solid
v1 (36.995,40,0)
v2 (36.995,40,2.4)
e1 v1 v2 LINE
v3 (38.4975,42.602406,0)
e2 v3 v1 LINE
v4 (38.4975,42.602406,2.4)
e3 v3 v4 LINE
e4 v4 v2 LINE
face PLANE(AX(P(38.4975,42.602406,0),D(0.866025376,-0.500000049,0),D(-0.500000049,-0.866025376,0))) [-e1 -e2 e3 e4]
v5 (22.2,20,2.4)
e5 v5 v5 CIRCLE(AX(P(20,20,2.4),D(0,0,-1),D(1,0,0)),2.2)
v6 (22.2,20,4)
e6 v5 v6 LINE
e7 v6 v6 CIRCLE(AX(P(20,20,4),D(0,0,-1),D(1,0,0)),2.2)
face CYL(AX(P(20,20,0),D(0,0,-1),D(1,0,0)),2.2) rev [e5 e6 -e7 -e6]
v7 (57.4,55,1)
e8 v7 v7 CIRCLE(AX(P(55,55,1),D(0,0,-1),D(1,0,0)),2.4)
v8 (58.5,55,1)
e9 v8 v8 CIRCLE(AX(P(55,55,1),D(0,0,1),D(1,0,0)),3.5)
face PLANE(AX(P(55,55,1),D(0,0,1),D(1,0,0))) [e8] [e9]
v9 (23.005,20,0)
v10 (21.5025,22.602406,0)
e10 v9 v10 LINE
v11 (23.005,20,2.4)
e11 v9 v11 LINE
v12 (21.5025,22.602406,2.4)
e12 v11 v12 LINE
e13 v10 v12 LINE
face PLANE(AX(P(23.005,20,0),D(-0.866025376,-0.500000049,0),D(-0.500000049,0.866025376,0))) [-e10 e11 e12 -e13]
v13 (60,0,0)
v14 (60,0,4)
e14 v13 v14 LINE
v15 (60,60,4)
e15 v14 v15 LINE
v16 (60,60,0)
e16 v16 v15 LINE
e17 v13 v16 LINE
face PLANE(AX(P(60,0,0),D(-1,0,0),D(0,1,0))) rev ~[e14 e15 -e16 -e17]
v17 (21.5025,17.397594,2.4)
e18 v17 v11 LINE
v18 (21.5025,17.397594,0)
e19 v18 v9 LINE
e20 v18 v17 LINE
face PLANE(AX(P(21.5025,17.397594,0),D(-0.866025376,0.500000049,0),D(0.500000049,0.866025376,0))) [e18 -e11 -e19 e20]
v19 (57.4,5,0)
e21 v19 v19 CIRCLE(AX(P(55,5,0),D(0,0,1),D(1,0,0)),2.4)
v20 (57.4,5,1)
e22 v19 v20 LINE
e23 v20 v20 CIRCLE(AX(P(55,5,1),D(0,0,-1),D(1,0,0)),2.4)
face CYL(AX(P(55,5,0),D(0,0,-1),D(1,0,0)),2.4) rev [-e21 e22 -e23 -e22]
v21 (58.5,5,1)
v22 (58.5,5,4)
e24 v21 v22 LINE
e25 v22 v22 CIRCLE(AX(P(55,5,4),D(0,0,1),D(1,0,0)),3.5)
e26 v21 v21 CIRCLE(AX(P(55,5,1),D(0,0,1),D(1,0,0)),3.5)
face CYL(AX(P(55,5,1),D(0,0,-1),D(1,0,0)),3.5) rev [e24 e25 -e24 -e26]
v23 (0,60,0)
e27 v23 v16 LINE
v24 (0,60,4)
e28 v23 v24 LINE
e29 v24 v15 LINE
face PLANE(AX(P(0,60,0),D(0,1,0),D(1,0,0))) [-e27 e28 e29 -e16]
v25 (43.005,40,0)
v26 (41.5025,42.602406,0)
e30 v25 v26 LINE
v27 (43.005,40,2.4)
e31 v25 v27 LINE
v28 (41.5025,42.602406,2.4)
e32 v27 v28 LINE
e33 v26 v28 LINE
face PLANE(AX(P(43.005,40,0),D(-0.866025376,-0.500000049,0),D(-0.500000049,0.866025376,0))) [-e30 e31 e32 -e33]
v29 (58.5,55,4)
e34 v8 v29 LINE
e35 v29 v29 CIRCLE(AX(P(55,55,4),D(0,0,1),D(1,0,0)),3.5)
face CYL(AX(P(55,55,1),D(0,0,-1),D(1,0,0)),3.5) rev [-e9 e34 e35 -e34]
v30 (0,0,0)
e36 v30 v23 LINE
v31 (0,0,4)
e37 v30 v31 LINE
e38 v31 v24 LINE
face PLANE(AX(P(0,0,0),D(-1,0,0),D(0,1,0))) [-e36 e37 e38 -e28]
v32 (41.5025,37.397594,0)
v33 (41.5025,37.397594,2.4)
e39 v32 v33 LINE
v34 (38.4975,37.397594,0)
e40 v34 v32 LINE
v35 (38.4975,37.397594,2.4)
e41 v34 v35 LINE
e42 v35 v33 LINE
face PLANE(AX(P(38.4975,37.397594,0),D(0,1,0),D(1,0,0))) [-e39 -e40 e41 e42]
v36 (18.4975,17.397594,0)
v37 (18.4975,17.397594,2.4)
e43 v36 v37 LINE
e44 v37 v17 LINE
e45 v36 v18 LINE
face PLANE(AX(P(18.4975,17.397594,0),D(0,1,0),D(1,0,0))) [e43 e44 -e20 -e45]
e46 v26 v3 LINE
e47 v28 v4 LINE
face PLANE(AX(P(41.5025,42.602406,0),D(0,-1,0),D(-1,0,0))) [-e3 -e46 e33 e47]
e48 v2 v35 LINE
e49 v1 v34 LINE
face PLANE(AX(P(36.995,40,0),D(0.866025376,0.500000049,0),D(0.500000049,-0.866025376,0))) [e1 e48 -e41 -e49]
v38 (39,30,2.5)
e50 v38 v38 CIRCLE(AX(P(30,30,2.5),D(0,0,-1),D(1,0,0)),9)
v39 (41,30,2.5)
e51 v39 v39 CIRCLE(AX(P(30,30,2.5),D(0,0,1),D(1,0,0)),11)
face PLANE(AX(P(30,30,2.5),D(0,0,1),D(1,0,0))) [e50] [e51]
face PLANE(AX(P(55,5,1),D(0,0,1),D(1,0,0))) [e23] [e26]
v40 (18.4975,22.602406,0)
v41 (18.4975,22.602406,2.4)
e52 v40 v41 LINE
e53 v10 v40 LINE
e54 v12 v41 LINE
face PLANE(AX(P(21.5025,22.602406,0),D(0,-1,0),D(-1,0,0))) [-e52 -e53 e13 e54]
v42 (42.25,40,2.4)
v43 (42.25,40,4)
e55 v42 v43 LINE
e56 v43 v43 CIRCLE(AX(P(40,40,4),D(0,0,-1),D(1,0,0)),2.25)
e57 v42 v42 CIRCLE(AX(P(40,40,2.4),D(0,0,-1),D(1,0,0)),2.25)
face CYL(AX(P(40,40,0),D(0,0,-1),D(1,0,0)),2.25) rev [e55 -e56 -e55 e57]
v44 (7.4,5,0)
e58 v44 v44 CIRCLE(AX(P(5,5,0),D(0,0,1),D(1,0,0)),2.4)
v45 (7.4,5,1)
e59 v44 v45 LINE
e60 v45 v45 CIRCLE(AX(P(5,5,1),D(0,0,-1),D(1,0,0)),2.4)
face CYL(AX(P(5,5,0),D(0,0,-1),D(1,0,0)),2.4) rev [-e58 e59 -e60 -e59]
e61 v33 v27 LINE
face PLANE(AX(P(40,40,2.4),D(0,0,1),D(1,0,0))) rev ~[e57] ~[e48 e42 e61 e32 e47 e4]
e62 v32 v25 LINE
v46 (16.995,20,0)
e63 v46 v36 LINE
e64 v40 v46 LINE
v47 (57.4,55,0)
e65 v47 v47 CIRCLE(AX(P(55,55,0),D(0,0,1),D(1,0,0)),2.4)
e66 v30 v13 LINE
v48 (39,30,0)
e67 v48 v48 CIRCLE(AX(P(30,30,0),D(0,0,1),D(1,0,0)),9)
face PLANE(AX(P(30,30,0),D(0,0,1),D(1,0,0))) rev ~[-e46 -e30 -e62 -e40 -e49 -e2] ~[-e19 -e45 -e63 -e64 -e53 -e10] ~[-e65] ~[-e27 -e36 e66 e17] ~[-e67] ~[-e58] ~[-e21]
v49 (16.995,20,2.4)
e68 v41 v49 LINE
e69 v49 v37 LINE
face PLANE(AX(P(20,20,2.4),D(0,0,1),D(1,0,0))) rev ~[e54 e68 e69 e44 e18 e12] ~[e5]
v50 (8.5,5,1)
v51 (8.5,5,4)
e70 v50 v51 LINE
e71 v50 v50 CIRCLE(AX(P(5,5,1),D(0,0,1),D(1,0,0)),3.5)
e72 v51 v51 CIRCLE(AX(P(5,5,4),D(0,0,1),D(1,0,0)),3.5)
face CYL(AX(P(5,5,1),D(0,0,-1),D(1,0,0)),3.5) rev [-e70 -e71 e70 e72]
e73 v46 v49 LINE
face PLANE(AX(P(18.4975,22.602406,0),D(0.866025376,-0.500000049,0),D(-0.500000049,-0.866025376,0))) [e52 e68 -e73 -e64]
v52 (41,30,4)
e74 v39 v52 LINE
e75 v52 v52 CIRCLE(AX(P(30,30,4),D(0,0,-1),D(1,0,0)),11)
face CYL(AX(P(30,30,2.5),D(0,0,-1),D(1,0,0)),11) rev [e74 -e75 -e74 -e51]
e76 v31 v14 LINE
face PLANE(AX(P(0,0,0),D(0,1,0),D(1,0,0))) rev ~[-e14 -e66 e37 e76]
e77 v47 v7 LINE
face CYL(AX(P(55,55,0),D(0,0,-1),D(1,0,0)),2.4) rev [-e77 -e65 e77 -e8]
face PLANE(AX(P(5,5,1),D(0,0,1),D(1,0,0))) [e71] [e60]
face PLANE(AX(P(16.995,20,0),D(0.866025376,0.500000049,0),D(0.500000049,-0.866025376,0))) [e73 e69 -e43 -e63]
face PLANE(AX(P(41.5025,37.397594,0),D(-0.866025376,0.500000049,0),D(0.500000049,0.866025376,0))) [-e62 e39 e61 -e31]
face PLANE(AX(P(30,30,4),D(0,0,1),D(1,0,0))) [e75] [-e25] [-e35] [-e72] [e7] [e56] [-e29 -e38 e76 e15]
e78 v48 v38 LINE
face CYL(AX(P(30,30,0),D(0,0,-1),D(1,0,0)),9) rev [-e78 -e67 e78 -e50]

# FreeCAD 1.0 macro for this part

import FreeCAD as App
import Part
import Sketcher

V = App.Vector
Q = App.Units.Quantity

doc = App.newDocument("Part")
params = doc.addObject("Spreadsheet::Sheet", "Params")
for row, (alias, value) in enumerate([
    ("sketch1_diameter", "4.5 mm"),
    ("pad1_length", "10 mm"),
    ("pad2_length", "2.4 mm"),
    ("sketch3_diameter", "4.4 mm"),
    ("pad3_length", "10 mm"),
    ("pad4_length", "2.4 mm"),
    ("sketch5_diameter", "22 mm"),
    ("pad5_length", "10 mm"),
    ("sketch6_diameter", "18 mm"),
    ("pad6_length", "10 mm"),
    ("sketch7_diameter", "7 mm"),
    ("pad7_length", "3 mm"),
    ("sketch8_diameter", "4.8 mm"),
    ("pad8_length", "10 mm"),
    ("sketch9_diameter", "7 mm"),
    ("pad9_length", "3 mm"),
    ("sketch10_diameter", "4.8 mm"),
    ("pad10_length", "10 mm"),
    ("sketch11_diameter", "7 mm"),
    ("pad11_length", "3 mm"),
    ("sketch12_diameter", "4.8 mm"),
    ("pad12_length", "10 mm"),
    ("sketch13_width", "60 mm"),
    ("pad13_length", "4 mm"),
], start=1):
    params.set(f"A{row}", alias)
    params.set(f"B{row}", "=" + value)
    params.setAlias(f"B{row}", alias)

body = doc.addObject("PartDesign::Body", "Body")

# Sketch on XY plane
sketch1 = doc.addObject("Sketcher::SketchObject", "Sketch")
body.addObject(sketch1)
sketch1.AttachmentSupport = (doc.XY_Plane, [""])
sketch1.MapMode = "FlatFace"
sketch1.addGeometry(Part.Circle(V(40, 40, 0), V(0, 0, 1), 2.2), False)
sketch1.addConstraint([
    Sketcher.Constraint("Diameter", 0, Q("4.5 mm")),
    Sketcher.Constraint("DistanceX", -1, 1, 0, 3, Q("40 mm")),
    Sketcher.Constraint("DistanceY", -1, 1, 0, 3, Q("40 mm")),
])
sketch1.setExpression("Constraints[0]", "Params.sketch1_diameter")
pad1 = doc.addObject("PartDesign::Pad", "Pad")
body.addObject(pad1)
pad1.Profile = sketch1
pad1.setExpression("Length", "Params.pad1_length")
body2 = doc.addObject("PartDesign::Body", "Body001")

# Sketch on XY plane
sketch2 = doc.addObject("Sketcher::SketchObject", "Sketch001")
body2.addObject(sketch2)
sketch2.AttachmentSupport = (doc.getObject("XY_Plane001"), [""])
sketch2.MapMode = "FlatFace"
sketch2.addGeometry([
    Part.LineSegment(V(-3, 0, 0), V(-1.5, -2.6, 0)),  # 0
    Part.LineSegment(V(-1.5, -2.6, 0), V(1.5, -2.6, 0)),  # 1
    Part.LineSegment(V(1.5, -2.6, 0), V(3, 0, 0)),  # 2
    Part.LineSegment(V(3, 0, 0), V(1.5, 2.6, 0)),  # 3
    Part.LineSegment(V(1.5, 2.6, 0), V(-1.5, 2.6, 0)),  # 4
    Part.LineSegment(V(-1.5, 2.6, 0), V(-3, 0, 0)),  # 5
], False)
sketch2.addConstraint([
    Sketcher.Constraint("Coincident", 0, 2, 1, 1),
    Sketcher.Constraint("Coincident", 1, 2, 2, 1),
    Sketcher.Constraint("Coincident", 2, 2, 3, 1),
    Sketcher.Constraint("Coincident", 3, 2, 4, 1),
    Sketcher.Constraint("Coincident", 4, 2, 5, 1),
    Sketcher.Constraint("Coincident", 5, 2, 0, 1),
    Sketcher.Constraint("Horizontal", 1),
    Sketcher.Constraint("Horizontal", 4),
    Sketcher.Constraint("Symmetric", 0, 2, 3, 2, -1, 1),
    Sketcher.Constraint("Symmetric", 2, 2, 5, 2, -1, 1),
    Sketcher.Constraint("PointOnObject", 2, 2, -1),
    Sketcher.Constraint("Parallel", 2, 5),
    Sketcher.Constraint("Vertical", 1, 2, 3, 2),
    Sketcher.Constraint("Angle", 0, Q("-59.999997 deg")),
    Sketcher.Constraint("DistanceX", 1, 1, 1, 2, Q("3.005 mm")),
    Sketcher.Constraint("DistanceX", 5, 2, 2, 2, Q("6.01 mm")),
])
pad2 = doc.addObject("PartDesign::Pad", "Pad001")
body2.addObject(pad2)
pad2.Profile = sketch2
pad2.setExpression("Length", "Params.pad2_length")
body3 = doc.addObject("PartDesign::Body", "Body002")
doc.recompute()

body2.Placement = App.Placement(V(40, 40, 0), App.Rotation(V(0, 0, 1), 0))
boolean = doc.addObject("PartDesign::Boolean", "Boolean")
body3.addObject(boolean)
boolean.Type = "Fuse"
boolean.addObjects([body2])
doc.recompute()

boolean2 = doc.addObject("PartDesign::Boolean", "Boolean001")
body3.addObject(boolean2)
boolean2.Type = "Fuse"
boolean2.addObjects([body])
body4 = doc.addObject("PartDesign::Body", "Body003")

# Sketch on XY plane
sketch3 = doc.addObject("Sketcher::SketchObject", "Sketch002")
body4.addObject(sketch3)
sketch3.AttachmentSupport = (doc.getObject("XY_Plane003"), [""])
sketch3.MapMode = "FlatFace"
sketch3.addGeometry(Part.Circle(V(20, 20, 0), V(0, 0, 1), 2.2), False)
sketch3.addConstraint([
    Sketcher.Constraint("Diameter", 0, Q("4.4 mm")),
    Sketcher.Constraint("DistanceX", -1, 1, 0, 3, Q("20 mm")),
    Sketcher.Constraint("DistanceY", -1, 1, 0, 3, Q("20 mm")),
])
sketch3.setExpression("Constraints[0]", "Params.sketch3_diameter")
pad3 = doc.addObject("PartDesign::Pad", "Pad002")
body4.addObject(pad3)
pad3.Profile = sketch3
pad3.setExpression("Length", "Params.pad3_length")
body5 = doc.addObject("PartDesign::Body", "Body004")

# Sketch on XY plane
sketch4 = doc.addObject("Sketcher::SketchObject", "Sketch003")
body5.addObject(sketch4)
sketch4.AttachmentSupport = (doc.getObject("XY_Plane004"), [""])
sketch4.MapMode = "FlatFace"
sketch4.addGeometry([
    Part.LineSegment(V(-3, 0, 0), V(-1.5, -2.6, 0)),  # 0
    Part.LineSegment(V(-1.5, -2.6, 0), V(1.5, -2.6, 0)),  # 1
    Part.LineSegment(V(1.5, -2.6, 0), V(3, 0, 0)),  # 2
    Part.LineSegment(V(3, 0, 0), V(1.5, 2.6, 0)),  # 3
    Part.LineSegment(V(1.5, 2.6, 0), V(-1.5, 2.6, 0)),  # 4
    Part.LineSegment(V(-1.5, 2.6, 0), V(-3, 0, 0)),  # 5
], False)
sketch4.addConstraint([
    Sketcher.Constraint("Coincident", 0, 2, 1, 1),
    Sketcher.Constraint("Coincident", 1, 2, 2, 1),
    Sketcher.Constraint("Coincident", 2, 2, 3, 1),
    Sketcher.Constraint("Coincident", 3, 2, 4, 1),
    Sketcher.Constraint("Coincident", 4, 2, 5, 1),
    Sketcher.Constraint("Coincident", 5, 2, 0, 1),
    Sketcher.Constraint("Horizontal", 1),
    Sketcher.Constraint("Horizontal", 4),
    Sketcher.Constraint("Symmetric", 0, 2, 3, 2, -1, 1),
    Sketcher.Constraint("Symmetric", 2, 2, 5, 2, -1, 1),
    Sketcher.Constraint("PointOnObject", 2, 2, -1),
    Sketcher.Constraint("Parallel", 2, 5),
    Sketcher.Constraint("Vertical", 1, 2, 3, 2),
    Sketcher.Constraint("Angle", 0, Q("-59.999997 deg")),
    Sketcher.Constraint("DistanceX", 1, 1, 1, 2, Q("3.005 mm")),
    Sketcher.Constraint("DistanceX", 5, 2, 2, 2, Q("6.01 mm")),
])
pad4 = doc.addObject("PartDesign::Pad", "Pad003")
body5.addObject(pad4)
pad4.Profile = sketch4
pad4.setExpression("Length", "Params.pad4_length")
body6 = doc.addObject("PartDesign::Body", "Body005")
body6.AllowCompound = True
doc.recompute()

body5.Placement = App.Placement(V(20, 20, 0), App.Rotation(V(0, 0, 1), 0))
boolean3 = doc.addObject("PartDesign::Boolean", "Boolean002")
body6.addObject(boolean3)
boolean3.Type = "Fuse"
boolean3.addObjects([body5])
doc.recompute()

boolean4 = doc.addObject("PartDesign::Boolean", "Boolean003")
body6.addObject(boolean4)
boolean4.Type = "Fuse"
boolean4.addObjects([body4])
doc.recompute()

boolean5 = doc.addObject("PartDesign::Boolean", "Boolean004")
body6.addObject(boolean5)
boolean5.Type = "Fuse"
boolean5.addObjects([body3])
body7 = doc.addObject("PartDesign::Body", "Body006")

# Sketch on XY plane
sketch5 = doc.addObject("Sketcher::SketchObject", "Sketch004")
body7.addObject(sketch5)
sketch5.AttachmentSupport = (doc.getObject("XY_Plane006"), [""])
sketch5.MapMode = "FlatFace"
sketch5.AttachmentOffset = App.Placement(V(0, 0, 2.5), App.Rotation())
sketch5.addGeometry(Part.Circle(V(30, 30, 0), V(0, 0, 1), 11), False)
sketch5.addConstraint([
    Sketcher.Constraint("Diameter", 0, Q("22 mm")),
    Sketcher.Constraint("DistanceX", -1, 1, 0, 3, Q("30 mm")),
    Sketcher.Constraint("DistanceY", -1, 1, 0, 3, Q("30 mm")),
])
sketch5.setExpression("Constraints[0]", "Params.sketch5_diameter")
pad5 = doc.addObject("PartDesign::Pad", "Pad004")
body7.addObject(pad5)
pad5.Profile = sketch5
pad5.setExpression("Length", "Params.pad5_length")
body8 = doc.addObject("PartDesign::Body", "Body007")

# Sketch on XY plane
sketch6 = doc.addObject("Sketcher::SketchObject", "Sketch005")
body8.addObject(sketch6)
sketch6.AttachmentSupport = (doc.getObject("XY_Plane007"), [""])
sketch6.MapMode = "FlatFace"
sketch6.addGeometry(Part.Circle(V(30, 30, 0), V(0, 0, 1), 9), False)
sketch6.addConstraint([
    Sketcher.Constraint("Diameter", 0, Q("18 mm")),
    Sketcher.Constraint("DistanceX", -1, 1, 0, 3, Q("30 mm")),
    Sketcher.Constraint("DistanceY", -1, 1, 0, 3, Q("30 mm")),
])
sketch6.setExpression("Constraints[0]", "Params.sketch6_diameter")
pad6 = doc.addObject("PartDesign::Pad", "Pad005")
body8.addObject(pad6)
pad6.Profile = sketch6
pad6.setExpression("Length", "Params.pad6_length")
body9 = doc.addObject("PartDesign::Body", "Body008")

# Sketch on XY plane
sketch7 = doc.addObject("Sketcher::SketchObject", "Sketch006")
body9.addObject(sketch7)
sketch7.AttachmentSupport = (doc.getObject("XY_Plane008"), [""])
sketch7.MapMode = "FlatFace"
sketch7.AttachmentOffset = App.Placement(V(0, 0, 1), App.Rotation())
sketch7.addGeometry(Part.Circle(V(0, 0, 0), V(0, 0, 1), 3.5), False)
sketch7.addConstraint([
    Sketcher.Constraint("Coincident", 0, 3, -1, 1),
    Sketcher.Constraint("Diameter", 0, Q("7 mm")),
])
sketch7.setExpression("Constraints[1]", "Params.sketch7_diameter")
pad7 = doc.addObject("PartDesign::Pad", "Pad006")
body9.addObject(pad7)
pad7.Profile = sketch7
pad7.setExpression("Length", "Params.pad7_length")
body10 = doc.addObject("PartDesign::Body", "Body009")

# Sketch on XY plane
sketch8 = doc.addObject("Sketcher::SketchObject", "Sketch007")
body10.addObject(sketch8)
sketch8.AttachmentSupport = (doc.getObject("XY_Plane009"), [""])
sketch8.MapMode = "FlatFace"
sketch8.addGeometry(Part.Circle(V(0, 0, 0), V(0, 0, 1), 2.4), False)
sketch8.addConstraint([
    Sketcher.Constraint("Coincident", 0, 3, -1, 1),
    Sketcher.Constraint("Diameter", 0, Q("4.8 mm")),
])
sketch8.setExpression("Constraints[1]", "Params.sketch8_diameter")
pad8 = doc.addObject("PartDesign::Pad", "Pad007")
body10.addObject(pad8)
pad8.Profile = sketch8
pad8.setExpression("Length", "Params.pad8_length")
doc.recompute()

boolean6 = doc.addObject("PartDesign::Boolean", "Boolean005")
body10.addObject(boolean6)
boolean6.Type = "Fuse"
boolean6.addObjects([body9])
body11 = doc.addObject("PartDesign::Body", "Body010")
doc.recompute()

body10.Placement = App.Placement(V(5, 5, 0), App.Rotation(V(0, 0, 1), 0))
boolean7 = doc.addObject("PartDesign::Boolean", "Boolean006")
body11.addObject(boolean7)
boolean7.Type = "Fuse"
boolean7.addObjects([body10])
body12 = doc.addObject("PartDesign::Body", "Body011")

# Sketch on XY plane
sketch9 = doc.addObject("Sketcher::SketchObject", "Sketch008")
body12.addObject(sketch9)
sketch9.AttachmentSupport = (doc.getObject("XY_Plane011"), [""])
sketch9.MapMode = "FlatFace"
sketch9.AttachmentOffset = App.Placement(V(0, 0, 1), App.Rotation())
sketch9.addGeometry(Part.Circle(V(0, 0, 0), V(0, 0, 1), 3.5), False)
sketch9.addConstraint([
    Sketcher.Constraint("Coincident", 0, 3, -1, 1),
    Sketcher.Constraint("Diameter", 0, Q("7 mm")),
])
sketch9.setExpression("Constraints[1]", "Params.sketch9_diameter")
pad9 = doc.addObject("PartDesign::Pad", "Pad008")
body12.addObject(pad9)
pad9.Profile = sketch9
pad9.setExpression("Length", "Params.pad9_length")
body13 = doc.addObject("PartDesign::Body", "Body012")

# Sketch on XY plane
sketch10 = doc.addObject("Sketcher::SketchObject", "Sketch009")
body13.addObject(sketch10)
sketch10.AttachmentSupport = (doc.getObject("XY_Plane012"), [""])
sketch10.MapMode = "FlatFace"
sketch10.addGeometry(Part.Circle(V(0, 0, 0), V(0, 0, 1), 2.4), False)
sketch10.addConstraint([
    Sketcher.Constraint("Coincident", 0, 3, -1, 1),
    Sketcher.Constraint("Diameter", 0, Q("4.8 mm")),
])
sketch10.setExpression("Constraints[1]", "Params.sketch10_diameter")
pad10 = doc.addObject("PartDesign::Pad", "Pad009")
body13.addObject(pad10)
pad10.Profile = sketch10
pad10.setExpression("Length", "Params.pad10_length")
doc.recompute()

boolean8 = doc.addObject("PartDesign::Boolean", "Boolean007")
body13.addObject(boolean8)
boolean8.Type = "Fuse"
boolean8.addObjects([body12])
body14 = doc.addObject("PartDesign::Body", "Body013")
doc.recompute()

body13.Placement = App.Placement(V(55, 5, 0), App.Rotation(V(0, 0, 1), 0))
boolean9 = doc.addObject("PartDesign::Boolean", "Boolean008")
body14.addObject(boolean9)
boolean9.Type = "Fuse"
boolean9.addObjects([body13])
body15 = doc.addObject("PartDesign::Body", "Body014")

# Sketch on XY plane
sketch11 = doc.addObject("Sketcher::SketchObject", "Sketch010")
body15.addObject(sketch11)
sketch11.AttachmentSupport = (doc.getObject("XY_Plane014"), [""])
sketch11.MapMode = "FlatFace"
sketch11.AttachmentOffset = App.Placement(V(0, 0, 1), App.Rotation())
sketch11.addGeometry(Part.Circle(V(0, 0, 0), V(0, 0, 1), 3.5), False)
sketch11.addConstraint([
    Sketcher.Constraint("Coincident", 0, 3, -1, 1),
    Sketcher.Constraint("Diameter", 0, Q("7 mm")),
])
sketch11.setExpression("Constraints[1]", "Params.sketch11_diameter")
pad11 = doc.addObject("PartDesign::Pad", "Pad010")
body15.addObject(pad11)
pad11.Profile = sketch11
pad11.setExpression("Length", "Params.pad11_length")
body16 = doc.addObject("PartDesign::Body", "Body015")

# Sketch on XY plane
sketch12 = doc.addObject("Sketcher::SketchObject", "Sketch011")
body16.addObject(sketch12)
sketch12.AttachmentSupport = (doc.getObject("XY_Plane015"), [""])
sketch12.MapMode = "FlatFace"
sketch12.addGeometry(Part.Circle(V(0, 0, 0), V(0, 0, 1), 2.4), False)
sketch12.addConstraint([
    Sketcher.Constraint("Coincident", 0, 3, -1, 1),
    Sketcher.Constraint("Diameter", 0, Q("4.8 mm")),
])
sketch12.setExpression("Constraints[1]", "Params.sketch12_diameter")
pad12 = doc.addObject("PartDesign::Pad", "Pad011")
body16.addObject(pad12)
pad12.Profile = sketch12
pad12.setExpression("Length", "Params.pad12_length")
doc.recompute()

boolean10 = doc.addObject("PartDesign::Boolean", "Boolean009")
body16.addObject(boolean10)
boolean10.Type = "Fuse"
boolean10.addObjects([body15])
body17 = doc.addObject("PartDesign::Body", "Body016")
body17.AllowCompound = True
doc.recompute()

body16.Placement = App.Placement(V(55, 55, 0), App.Rotation(V(0, 0, 1), 0))
boolean11 = doc.addObject("PartDesign::Boolean", "Boolean010")
body17.addObject(boolean11)
boolean11.Type = "Fuse"
boolean11.addObjects([body16])
doc.recompute()

boolean12 = doc.addObject("PartDesign::Boolean", "Boolean011")
body17.addObject(boolean12)
boolean12.Type = "Fuse"
boolean12.addObjects([body11])
doc.recompute()

boolean13 = doc.addObject("PartDesign::Boolean", "Boolean012")
body17.addObject(boolean13)
boolean13.Type = "Fuse"
boolean13.addObjects([body14])
body18 = doc.addObject("PartDesign::Body", "Body017")

# Sketch on XY plane
sketch13 = doc.addObject("Sketcher::SketchObject", "Sketch012")
body18.addObject(sketch13)
sketch13.AttachmentSupport = (doc.getObject("XY_Plane017"), [""])
sketch13.MapMode = "FlatFace"
sketch13.addGeometry([
    Part.LineSegment(V(0, 60, 0), V(0, 0, 0)),
    Part.LineSegment(V(0, 0, 0), V(60, 0, 0)),
    Part.LineSegment(V(60, 0, 0), V(60, 60, 0)),
    Part.LineSegment(V(60, 60, 0), V(0, 60, 0)),
], False)
sketch13.addConstraint([
    Sketcher.Constraint("Coincident", 0, 2, 1, 1),
    Sketcher.Constraint("Coincident", 1, 2, 2, 1),
    Sketcher.Constraint("Coincident", 2, 2, 3, 1),
    Sketcher.Constraint("Coincident", 3, 2, 0, 1),
    Sketcher.Constraint("Vertical", 0),
    Sketcher.Constraint("Horizontal", 1),
    Sketcher.Constraint("Vertical", 2),
    Sketcher.Constraint("Horizontal", 3),
    Sketcher.Constraint("Coincident", 0, 2, -1, 1),
    Sketcher.Constraint("Equal", 3, 0),
    Sketcher.Constraint("DistanceX", 1, 1, 1, 2, Q("60 mm")),
])
sketch13.setExpression("Constraints[10]", "Params.sketch13_width")
pad13 = doc.addObject("PartDesign::Pad", "Pad012")
body18.addObject(pad13)
pad13.Profile = sketch13
pad13.setExpression("Length", "Params.pad13_length")
doc.recompute()

boolean14 = doc.addObject("PartDesign::Boolean", "Boolean013")
body18.addObject(boolean14)
boolean14.Type = "Cut"
boolean14.addObjects([body17])
doc.recompute()

boolean15 = doc.addObject("PartDesign::Boolean", "Boolean014")
body18.addObject(boolean15)
boolean15.Type = "Cut"
boolean15.addObjects([body8])
doc.recompute()

boolean16 = doc.addObject("PartDesign::Boolean", "Boolean015")
body18.addObject(boolean16)
boolean16.Type = "Cut"
boolean16.addObjects([body7])
doc.recompute()

boolean17 = doc.addObject("PartDesign::Boolean", "Boolean016")
body18.addObject(boolean17)
boolean17.Type = "Cut"
boolean17.addObjects([body6])

doc.recompute()
